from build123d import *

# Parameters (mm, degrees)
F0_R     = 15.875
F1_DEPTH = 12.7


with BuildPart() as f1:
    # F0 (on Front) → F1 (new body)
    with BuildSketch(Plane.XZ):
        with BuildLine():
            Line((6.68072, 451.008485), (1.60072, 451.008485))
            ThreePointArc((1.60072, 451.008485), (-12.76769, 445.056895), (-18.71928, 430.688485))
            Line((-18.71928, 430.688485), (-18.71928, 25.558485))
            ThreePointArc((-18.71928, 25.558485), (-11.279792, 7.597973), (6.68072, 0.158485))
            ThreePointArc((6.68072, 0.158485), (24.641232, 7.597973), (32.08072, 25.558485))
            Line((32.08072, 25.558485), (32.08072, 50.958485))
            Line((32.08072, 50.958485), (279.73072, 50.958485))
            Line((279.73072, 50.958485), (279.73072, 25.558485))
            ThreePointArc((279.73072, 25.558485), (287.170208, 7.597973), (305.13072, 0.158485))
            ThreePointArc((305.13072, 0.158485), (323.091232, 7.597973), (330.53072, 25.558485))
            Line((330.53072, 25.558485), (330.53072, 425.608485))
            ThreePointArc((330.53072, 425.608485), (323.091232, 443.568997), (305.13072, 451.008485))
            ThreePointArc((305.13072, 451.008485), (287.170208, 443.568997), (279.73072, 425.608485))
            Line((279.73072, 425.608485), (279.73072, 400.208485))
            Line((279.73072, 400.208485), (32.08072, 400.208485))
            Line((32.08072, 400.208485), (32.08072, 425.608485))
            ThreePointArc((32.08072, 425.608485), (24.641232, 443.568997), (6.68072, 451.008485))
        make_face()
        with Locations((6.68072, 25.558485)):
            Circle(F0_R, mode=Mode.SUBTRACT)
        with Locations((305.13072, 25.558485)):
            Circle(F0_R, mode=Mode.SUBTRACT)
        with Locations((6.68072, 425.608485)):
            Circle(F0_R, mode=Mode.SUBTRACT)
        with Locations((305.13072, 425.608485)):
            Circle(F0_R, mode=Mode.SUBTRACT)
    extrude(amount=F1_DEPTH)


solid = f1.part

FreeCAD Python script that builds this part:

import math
import FreeCAD as App
import Part
import Sketcher
Q = App.Units.Quantity

doc = App.newDocument("Part")
body = doc.addObject("PartDesign::Body", "Body")

# Sketch on XZ plane
sketch1 = body.newObject("Sketcher::SketchObject", "Sketch")
sketch1.AttachmentSupport = (doc.getObject("XZ_Plane"), [""])
sketch1.MapMode = "FlatFace"
sketch1.addGeometry([
    Part.LineSegment(App.Vector(6.68072, 451.008485, 0), App.Vector(1.60072, 451.008485, 0)),  # 0
    Part.ArcOfCircle(Part.Circle(App.Vector(1.600719, 430.688486, 0), App.Vector(0, 0, 1), 20.319999), math.radians(89.999998), math.radians(180.000002)),  # 1
    Part.LineSegment(App.Vector(-18.71928, 430.688485, 0), App.Vector(-18.71928, 25.558485, 0)),  # 2
    Part.ArcOfCircle(Part.Circle(App.Vector(6.680721, 25.558486, 0), App.Vector(0, 0, 1), 25.400001), math.radians(-179.999998), math.radians(-90.000002)),  # 3
    Part.ArcOfCircle(Part.Circle(App.Vector(6.680719, 25.558486, 0), App.Vector(0, 0, 1), 25.400001), math.radians(-89.999998), math.radians(-0.000002)),  # 4
    Part.LineSegment(App.Vector(32.08072, 25.558485, 0), App.Vector(32.08072, 50.958485, 0)),  # 5
    Part.LineSegment(App.Vector(32.08072, 50.958485, 0), App.Vector(279.73072, 50.958485, 0)),  # 6
    Part.LineSegment(App.Vector(279.73072, 50.958485, 0), App.Vector(279.73072, 25.558485, 0)),  # 7
    Part.ArcOfCircle(Part.Circle(App.Vector(305.130721, 25.558486, 0), App.Vector(0, 0, 1), 25.400001), math.radians(-179.999998), math.radians(-90.000002)),  # 8
    Part.ArcOfCircle(Part.Circle(App.Vector(305.130719, 25.558486, 0), App.Vector(0, 0, 1), 25.400001), math.radians(-89.999998), math.radians(-0.000002)),  # 9
    Part.LineSegment(App.Vector(330.53072, 25.558485, 0), App.Vector(330.53072, 425.608485, 0)),  # 10
    Part.ArcOfCircle(Part.Circle(App.Vector(305.130719, 425.608484, 0), App.Vector(0, 0, 1), 25.400001), math.radians(0.000002), math.radians(89.999998)),  # 11
    Part.ArcOfCircle(Part.Circle(App.Vector(305.130721, 425.608484, 0), App.Vector(0, 0, 1), 25.400001), math.radians(90.000002), math.radians(179.999998)),  # 12
    Part.LineSegment(App.Vector(279.73072, 425.608485, 0), App.Vector(279.73072, 400.208485, 0)),  # 13
    Part.LineSegment(App.Vector(279.73072, 400.208485, 0), App.Vector(32.08072, 400.208485, 0)),  # 14
    Part.LineSegment(App.Vector(32.08072, 400.208485, 0), App.Vector(32.08072, 425.608485, 0)),  # 15
    Part.ArcOfCircle(Part.Circle(App.Vector(6.680719, 425.608484, 0), App.Vector(0, 0, 1), 25.400001), math.radians(0.000002), math.radians(89.999998)),  # 16
    Part.Circle(App.Vector(6.68072, 25.558485, 0), App.Vector(0, 0, 1), 15.875),  # 17
    Part.Circle(App.Vector(305.13072, 25.558485, 0), App.Vector(0, 0, 1), 15.875),  # 18
    Part.Circle(App.Vector(6.68072, 425.608485, 0), App.Vector(0, 0, 1), 15.875),  # 19
    Part.Circle(App.Vector(305.13072, 425.608485, 0), App.Vector(0, 0, 1), 15.875),  # 20
], False)
sketch1.addConstraint([
    Sketcher.Constraint("Tangent", 0, 2, 1, 1),
    Sketcher.Constraint("Tangent", 1, 2, 2, 1),
    Sketcher.Constraint("Tangent", 2, 2, 3, 1),
    Sketcher.Constraint("Tangent", 3, 2, 4, 1),
    Sketcher.Constraint("Tangent", 4, 2, 5, 1),
    Sketcher.Constraint("Coincident", 5, 2, 6, 1),
    Sketcher.Constraint("Coincident", 6, 2, 7, 1),
    Sketcher.Constraint("Tangent", 7, 2, 8, 1),
    Sketcher.Constraint("Tangent", 8, 2, 9, 1),
    Sketcher.Constraint("Tangent", 9, 2, 10, 1),
    Sketcher.Constraint("Tangent", 10, 2, 11, 1),
    Sketcher.Constraint("Tangent", 11, 2, 12, 1),
    Sketcher.Constraint("Tangent", 12, 2, 13, 1),
    Sketcher.Constraint("Coincident", 13, 2, 14, 1),
    Sketcher.Constraint("Coincident", 14, 2, 15, 1),
    Sketcher.Constraint("Tangent", 15, 2, 16, 1),
    Sketcher.Constraint("Tangent", 16, 2, 0, 1),
    Sketcher.Constraint("Horizontal", 0),
    Sketcher.Constraint("Vertical", 2),
    Sketcher.Constraint("Vertical", 5),
    Sketcher.Constraint("Horizontal", 6),
    Sketcher.Constraint("Vertical", 7),
    Sketcher.Constraint("Vertical", 10),
    Sketcher.Constraint("Vertical", 13),
    Sketcher.Constraint("Horizontal", 14),
    Sketcher.Constraint("Vertical", 15),
    Sketcher.Constraint("Coincident", 17, 3, 3, 3),
    Sketcher.Constraint("Coincident", 18, 3, 8, 3),
    Sketcher.Constraint("Coincident", 19, 3, 16, 3),
    Sketcher.Constraint("Coincident", 20, 3, 11, 3),
    Sketcher.Constraint("Equal", 3, 4),
    Sketcher.Constraint("Equal", 4, 8),
    Sketcher.Constraint("Equal", 8, 9),
    Sketcher.Constraint("Equal", 9, 11),
    Sketcher.Constraint("Equal", 11, 12),
    Sketcher.Constraint("Equal", 12, 16),
    Sketcher.Constraint("Equal", 17, 18),
    Sketcher.Constraint("Equal", 18, 19),
    Sketcher.Constraint("Equal", 19, 20),
    Sketcher.Constraint("Horizontal", 4, 3, 8, 3),
    Sketcher.Constraint("Horizontal", 12, 3, 16, 3),
    Sketcher.Constraint("Vertical", 4, 3, 16, 3),
    Sketcher.Constraint("Vertical", 19, 3, 3, 2),
    Sketcher.Constraint("Vertical", 20, 3, 8, 2),
    Sketcher.Constraint("Vertical", 8, 2, 11, 2),
    Sketcher.Constraint("Equal", 7, 13),
    Sketcher.Constraint("Radius", 3, Q("1 in")),
    Sketcher.Constraint("Radius", 1, Q("0.8 in")),
    Sketcher.Constraint("Diameter", 17, Q("1.25 in")),
    Sketcher.Constraint("DistanceY", 5, 1, 5, 2, Q("1 in")),
    Sketcher.Constraint("DistanceX", 6, 1, 6, 2, Q("9.75 in")),
    Sketcher.Constraint("DistanceY", 2, 2, 2, 1, Q("15.95 in")),
    Sketcher.Constraint("DistanceX", -1, 1, 1, 3, Q("1.600719 mm")),
    Sketcher.Constraint("DistanceY", -1, 1, 1, 3, Q("430.688486 mm")),
])
pad1 = body.newObject("PartDesign::Pad", "Pad")
pad1.Profile = sketch1
pad1.Length = Q("0.5 in")

doc.recompute()
